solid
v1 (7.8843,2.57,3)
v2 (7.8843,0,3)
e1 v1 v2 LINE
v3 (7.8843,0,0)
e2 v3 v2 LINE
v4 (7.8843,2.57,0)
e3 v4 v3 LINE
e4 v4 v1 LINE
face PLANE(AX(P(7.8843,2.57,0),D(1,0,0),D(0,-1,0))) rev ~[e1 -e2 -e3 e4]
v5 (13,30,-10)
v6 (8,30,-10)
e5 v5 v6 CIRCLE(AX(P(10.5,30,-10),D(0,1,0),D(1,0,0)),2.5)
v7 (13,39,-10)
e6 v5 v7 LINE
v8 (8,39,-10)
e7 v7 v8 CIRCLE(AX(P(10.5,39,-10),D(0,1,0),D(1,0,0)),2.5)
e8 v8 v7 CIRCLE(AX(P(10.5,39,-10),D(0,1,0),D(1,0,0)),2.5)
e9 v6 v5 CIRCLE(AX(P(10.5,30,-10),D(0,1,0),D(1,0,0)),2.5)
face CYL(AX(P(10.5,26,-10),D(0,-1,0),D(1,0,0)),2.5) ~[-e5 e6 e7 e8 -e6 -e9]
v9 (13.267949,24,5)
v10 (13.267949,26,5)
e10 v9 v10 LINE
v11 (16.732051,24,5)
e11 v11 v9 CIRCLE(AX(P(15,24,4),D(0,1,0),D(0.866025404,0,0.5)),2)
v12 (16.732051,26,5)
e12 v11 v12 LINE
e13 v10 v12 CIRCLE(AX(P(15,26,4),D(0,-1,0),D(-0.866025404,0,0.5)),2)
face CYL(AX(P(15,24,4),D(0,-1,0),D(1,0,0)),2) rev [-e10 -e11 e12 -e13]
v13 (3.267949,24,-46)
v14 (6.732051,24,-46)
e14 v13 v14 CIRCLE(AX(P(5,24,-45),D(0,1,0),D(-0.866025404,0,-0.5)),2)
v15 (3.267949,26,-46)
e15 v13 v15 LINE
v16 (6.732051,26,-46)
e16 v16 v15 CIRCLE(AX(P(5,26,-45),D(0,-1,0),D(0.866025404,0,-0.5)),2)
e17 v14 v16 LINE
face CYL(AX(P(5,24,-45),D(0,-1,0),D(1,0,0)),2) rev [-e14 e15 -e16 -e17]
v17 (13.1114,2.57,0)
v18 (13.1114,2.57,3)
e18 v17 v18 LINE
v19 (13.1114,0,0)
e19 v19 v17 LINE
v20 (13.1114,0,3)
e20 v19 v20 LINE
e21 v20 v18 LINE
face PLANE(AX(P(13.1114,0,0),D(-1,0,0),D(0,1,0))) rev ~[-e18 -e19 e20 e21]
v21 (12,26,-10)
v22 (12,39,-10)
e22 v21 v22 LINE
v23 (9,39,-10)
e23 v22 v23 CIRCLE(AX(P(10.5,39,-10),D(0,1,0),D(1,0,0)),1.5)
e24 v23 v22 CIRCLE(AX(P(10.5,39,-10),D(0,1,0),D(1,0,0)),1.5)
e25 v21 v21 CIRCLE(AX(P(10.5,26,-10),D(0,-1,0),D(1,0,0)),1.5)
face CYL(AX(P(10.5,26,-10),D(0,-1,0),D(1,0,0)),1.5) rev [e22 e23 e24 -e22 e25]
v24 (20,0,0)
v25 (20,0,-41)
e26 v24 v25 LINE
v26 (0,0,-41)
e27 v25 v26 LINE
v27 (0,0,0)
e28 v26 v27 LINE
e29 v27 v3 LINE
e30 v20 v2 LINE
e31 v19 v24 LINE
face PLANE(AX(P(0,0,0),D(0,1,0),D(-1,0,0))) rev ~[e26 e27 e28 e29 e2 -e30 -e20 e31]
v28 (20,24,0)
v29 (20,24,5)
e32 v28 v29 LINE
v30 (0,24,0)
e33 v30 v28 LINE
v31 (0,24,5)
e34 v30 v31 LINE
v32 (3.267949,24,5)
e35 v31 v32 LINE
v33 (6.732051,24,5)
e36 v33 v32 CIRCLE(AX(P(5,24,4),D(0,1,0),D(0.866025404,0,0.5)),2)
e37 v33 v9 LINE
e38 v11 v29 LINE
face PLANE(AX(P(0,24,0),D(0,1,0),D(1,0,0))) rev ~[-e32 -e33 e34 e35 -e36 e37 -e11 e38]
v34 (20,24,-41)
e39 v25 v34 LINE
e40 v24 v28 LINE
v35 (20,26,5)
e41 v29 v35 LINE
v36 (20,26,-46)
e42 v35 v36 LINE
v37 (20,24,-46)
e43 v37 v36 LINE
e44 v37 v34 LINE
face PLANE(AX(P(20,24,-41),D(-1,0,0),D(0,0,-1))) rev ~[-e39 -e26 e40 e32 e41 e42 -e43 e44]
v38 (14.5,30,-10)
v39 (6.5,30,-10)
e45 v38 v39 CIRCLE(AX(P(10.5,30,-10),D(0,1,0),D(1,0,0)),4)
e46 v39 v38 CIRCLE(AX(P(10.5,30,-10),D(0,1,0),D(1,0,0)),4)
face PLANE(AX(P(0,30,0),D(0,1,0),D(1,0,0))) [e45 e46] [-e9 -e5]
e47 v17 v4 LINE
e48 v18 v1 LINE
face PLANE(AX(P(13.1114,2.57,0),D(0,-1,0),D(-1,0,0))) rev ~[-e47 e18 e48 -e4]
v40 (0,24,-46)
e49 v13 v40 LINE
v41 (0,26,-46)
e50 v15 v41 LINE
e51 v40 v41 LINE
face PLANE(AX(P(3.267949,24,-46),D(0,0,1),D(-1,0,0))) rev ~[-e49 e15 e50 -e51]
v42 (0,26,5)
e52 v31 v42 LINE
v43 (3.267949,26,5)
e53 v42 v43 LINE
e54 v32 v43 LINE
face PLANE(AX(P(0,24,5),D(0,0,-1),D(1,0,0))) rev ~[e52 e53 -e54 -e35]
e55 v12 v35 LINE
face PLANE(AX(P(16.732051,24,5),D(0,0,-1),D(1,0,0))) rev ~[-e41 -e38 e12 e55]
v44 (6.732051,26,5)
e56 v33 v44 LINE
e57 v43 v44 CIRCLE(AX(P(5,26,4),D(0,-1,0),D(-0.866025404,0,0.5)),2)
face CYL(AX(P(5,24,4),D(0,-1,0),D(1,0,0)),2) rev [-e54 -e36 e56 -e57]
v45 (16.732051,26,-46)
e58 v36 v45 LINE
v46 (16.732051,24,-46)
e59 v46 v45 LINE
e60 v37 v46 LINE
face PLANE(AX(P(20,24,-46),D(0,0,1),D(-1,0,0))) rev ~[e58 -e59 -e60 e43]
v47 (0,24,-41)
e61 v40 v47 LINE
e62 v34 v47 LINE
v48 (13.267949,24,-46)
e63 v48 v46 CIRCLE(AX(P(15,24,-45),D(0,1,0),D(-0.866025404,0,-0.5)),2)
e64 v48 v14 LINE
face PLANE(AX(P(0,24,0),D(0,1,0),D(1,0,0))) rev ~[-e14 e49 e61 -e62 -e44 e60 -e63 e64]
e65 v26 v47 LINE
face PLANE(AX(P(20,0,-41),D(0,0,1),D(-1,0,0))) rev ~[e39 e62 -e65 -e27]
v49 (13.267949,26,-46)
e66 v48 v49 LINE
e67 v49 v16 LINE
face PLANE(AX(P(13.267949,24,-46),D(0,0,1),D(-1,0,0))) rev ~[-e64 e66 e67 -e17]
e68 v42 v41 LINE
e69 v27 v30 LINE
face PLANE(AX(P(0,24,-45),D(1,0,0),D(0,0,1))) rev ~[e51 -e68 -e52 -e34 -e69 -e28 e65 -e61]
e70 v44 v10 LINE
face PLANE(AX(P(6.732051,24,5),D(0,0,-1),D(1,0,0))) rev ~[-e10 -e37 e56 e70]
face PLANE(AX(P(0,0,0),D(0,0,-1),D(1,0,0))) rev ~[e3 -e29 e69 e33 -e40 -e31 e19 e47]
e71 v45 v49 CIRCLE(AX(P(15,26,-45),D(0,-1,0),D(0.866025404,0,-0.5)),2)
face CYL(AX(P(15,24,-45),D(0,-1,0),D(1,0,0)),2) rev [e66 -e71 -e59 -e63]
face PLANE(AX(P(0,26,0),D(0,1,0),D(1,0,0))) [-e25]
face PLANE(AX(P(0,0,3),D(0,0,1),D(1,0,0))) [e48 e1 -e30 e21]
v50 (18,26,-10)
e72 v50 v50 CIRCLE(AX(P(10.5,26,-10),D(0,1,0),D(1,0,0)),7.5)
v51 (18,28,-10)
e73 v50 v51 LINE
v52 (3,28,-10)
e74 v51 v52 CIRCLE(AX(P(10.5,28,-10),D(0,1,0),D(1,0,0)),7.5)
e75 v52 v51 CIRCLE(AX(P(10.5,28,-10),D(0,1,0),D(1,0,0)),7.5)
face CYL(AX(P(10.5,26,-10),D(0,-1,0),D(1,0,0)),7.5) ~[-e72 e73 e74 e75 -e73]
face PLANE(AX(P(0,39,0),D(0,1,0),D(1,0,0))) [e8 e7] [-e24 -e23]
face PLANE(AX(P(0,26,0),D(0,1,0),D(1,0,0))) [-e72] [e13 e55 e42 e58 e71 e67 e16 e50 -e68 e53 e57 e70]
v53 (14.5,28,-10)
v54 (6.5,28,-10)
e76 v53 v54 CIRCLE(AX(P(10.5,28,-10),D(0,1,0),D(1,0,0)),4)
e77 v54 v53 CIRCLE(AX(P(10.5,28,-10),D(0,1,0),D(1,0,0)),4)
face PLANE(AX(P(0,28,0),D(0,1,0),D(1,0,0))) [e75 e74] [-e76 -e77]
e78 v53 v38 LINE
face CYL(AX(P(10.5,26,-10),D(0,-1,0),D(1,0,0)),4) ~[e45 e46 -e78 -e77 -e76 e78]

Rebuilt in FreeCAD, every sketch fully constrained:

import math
import FreeCAD as App
import Part
import Sketcher
from FreeCAD import Vector
Q = App.Units.Quantity


def add_polygon(sketch, points):
    """Adds a closed chain of lines whose ends are joined by coincident constraints."""
    first, n = sketch.GeometryCount, len(points)
    for a, b in zip(points, points[1:] + points[:1]):
        sketch.addGeometry(Part.LineSegment(App.Vector(*a, 0), App.Vector(*b, 0)), False)
    for i in range(n):
        sketch.addConstraint(Sketcher.Constraint("Coincident", first + i, 2, first + (i + 1) % n, 1))

doc = App.newDocument("Part")
body = doc.addObject("PartDesign::Body", "Body")

# Sketch on XZ plane
sketch1 = body.newObject("Sketcher::SketchObject", "Sketch")
sketch1.AttachmentSupport = (doc.getObject("XZ_Plane"), [""])
sketch1.MapMode = "FlatFace"
add_polygon(sketch1, [(0, -41), (0, 0), (20, 0), (20, -41)])  # lines 0-3
sketch1.addConstraint(Sketcher.Constraint("Vertical", 0))
sketch1.addConstraint(Sketcher.Constraint("Horizontal", 1))
sketch1.addConstraint(Sketcher.Constraint("Vertical", 2))
sketch1.addConstraint(Sketcher.Constraint("Horizontal", 3))
sketch1.addConstraint(Sketcher.Constraint("Coincident", 0, 2, -1, 1))
sketch1.addConstraint(Sketcher.Constraint("DistanceX", 1, 1, 1, 2, Q("20 mm")))
sketch1.addConstraint(Sketcher.Constraint("DistanceY", 0, 1, 0, 2, Q("41 mm")))
pad1 = body.newObject("PartDesign::Pad", "Pad")
pad1.Profile = sketch1
pad1.Length = 24
pad1.Reversed = True

# Sketch on XZ plane
sketch2 = body.newObject("Sketcher::SketchObject", "Sketch001")
sketch2.AttachmentSupport = (doc.getObject("XZ_Plane"), [""])
sketch2.MapMode = "FlatFace"
sketch2.AttachmentOffset = App.Placement(Vector(0, 0, -24), App.Rotation())
sketch2.addGeometry(Part.LineSegment(Vector(0, 5, 0), Vector(3.3, 5, 0)), False)
sketch2.addGeometry(Part.ArcOfCircle(Part.Circle(Vector(5, 4, 0), Vector(0, 0, 1), 2), math.radians(150), math.radians(390)), False)
sketch2.addGeometry(Part.LineSegment(Vector(6.7, 5, 0), Vector(13.3, 5, 0)), False)
sketch2.addGeometry(Part.ArcOfCircle(Part.Circle(Vector(15, 4, 0), Vector(0, 0, 1), 2), math.radians(150), math.radians(390)), False)
sketch2.addGeometry(Part.LineSegment(Vector(16.7, 5, 0), Vector(20, 5, 0)), False)
sketch2.addGeometry(Part.LineSegment(Vector(20, 5, 0), Vector(20, -46, 0)), False)
sketch2.addGeometry(Part.LineSegment(Vector(20, -46, 0), Vector(16.7, -46, 0)), False)
sketch2.addGeometry(Part.ArcOfCircle(Part.Circle(Vector(15, -45, 0), Vector(0, 0, 1), 2), math.radians(-30), math.radians(210)), False)
sketch2.addGeometry(Part.LineSegment(Vector(13.3, -46, 0), Vector(6.7, -46, 0)), False)
sketch2.addGeometry(Part.ArcOfCircle(Part.Circle(Vector(5, -45, 0), Vector(0, 0, 1), 2), math.radians(-30), math.radians(210)), False)
sketch2.addGeometry(Part.LineSegment(Vector(3.3, -46, 0), Vector(0, -46, 0)), False)
sketch2.addGeometry(Part.LineSegment(Vector(0, -46, 0), Vector(0, 5, 0)), False)
sketch2.addConstraint(Sketcher.Constraint("Coincident", 0, 2, 1, 1))
sketch2.addConstraint(Sketcher.Constraint("Coincident", 1, 2, 2, 1))
sketch2.addConstraint(Sketcher.Constraint("Coincident", 2, 2, 3, 1))
sketch2.addConstraint(Sketcher.Constraint("Coincident", 3, 2, 4, 1))
sketch2.addConstraint(Sketcher.Constraint("Coincident", 4, 2, 5, 1))
sketch2.addConstraint(Sketcher.Constraint("Coincident", 5, 2, 6, 1))
sketch2.addConstraint(Sketcher.Constraint("Coincident", 6, 2, 7, 1))
sketch2.addConstraint(Sketcher.Constraint("Coincident", 7, 2, 8, 1))
sketch2.addConstraint(Sketcher.Constraint("Coincident", 8, 2, 9, 1))
sketch2.addConstraint(Sketcher.Constraint("Coincident", 9, 2, 10, 1))
sketch2.addConstraint(Sketcher.Constraint("Coincident", 10, 2, 11, 1))
sketch2.addConstraint(Sketcher.Constraint("Coincident", 11, 2, 0, 1))
sketch2.addConstraint(Sketcher.Constraint("Horizontal", 0))
sketch2.addConstraint(Sketcher.Constraint("Horizontal", 2))
sketch2.addConstraint(Sketcher.Constraint("Horizontal", 4))
sketch2.addConstraint(Sketcher.Constraint("Vertical", 5))
sketch2.addConstraint(Sketcher.Constraint("Horizontal", 6))
sketch2.addConstraint(Sketcher.Constraint("Horizontal", 8))
sketch2.addConstraint(Sketcher.Constraint("Horizontal", 10))
sketch2.addConstraint(Sketcher.Constraint("Vertical", 11))
sketch2.addConstraint(Sketcher.Constraint("Equal", 1, 3))
sketch2.addConstraint(Sketcher.Constraint("Equal", 3, 7))
sketch2.addConstraint(Sketcher.Constraint("Equal", 7, 9))
sketch2.addConstraint(Sketcher.Constraint("PointOnObject", 10, 2, -2))
sketch2.addConstraint(Sketcher.Constraint("Horizontal", 1, 3, 3, 3))
sketch2.addConstraint(Sketcher.Constraint("Horizontal", 7, 3, 9, 3))
sketch2.addConstraint(Sketcher.Constraint("Horizontal", 0, 2, 1, 2))
sketch2.addConstraint(Sketcher.Constraint("Horizontal", 2, 2, 3, 2))
sketch2.addConstraint(Sketcher.Constraint("Horizontal", 6, 2, 7, 2))
sketch2.addConstraint(Sketcher.Constraint("Horizontal", 8, 2, 9, 2))
sketch2.addConstraint(Sketcher.Constraint("Vertical", 3, 3, 7, 3))
sketch2.addConstraint(Sketcher.Constraint("Vertical", 1, 3, 9, 3))
sketch2.addConstraint(Sketcher.Constraint("Vertical", 3, 2, 6, 2))
sketch2.addConstraint(Sketcher.Constraint("Equal", 0, 4))
sketch2.addConstraint(Sketcher.Constraint("Radius", 1, Q("2 mm")))
sketch2.addConstraint(Sketcher.Constraint("DistanceY", 5, 2, 5, 1, Q("51 mm")))
sketch2.addConstraint(Sketcher.Constraint("DistanceX", -1, 1, 1, 3, Q("5 mm")))
sketch2.addConstraint(Sketcher.Constraint("DistanceY", -1, 1, 1, 3, Q("4 mm")))
sketch2.addConstraint(Sketcher.Constraint("DistanceY", -1, 1, 0, 2, Q("5 mm")))
sketch2.addConstraint(Sketcher.Constraint("DistanceX", -1, 1, 4, 2, Q("20 mm")))
pad2 = body.newObject("PartDesign::Pad", "Pad001")
pad2.Profile = sketch2
pad2.Length = 2
pad2.Reversed = True

# Sketch on XZ plane
sketch3 = body.newObject("Sketcher::SketchObject", "Sketch002")
sketch3.AttachmentSupport = (doc.getObject("XZ_Plane"), [""])
sketch3.MapMode = "FlatFace"
sketch3.AttachmentOffset = App.Placement(Vector(0, 0, -26), App.Rotation())
sketch3.addGeometry(Part.Circle(Vector(10.5, -10, 0), Vector(0, 0, 1), 2.5), False)
sketch3.addGeometry(Part.Circle(Vector(10.5, -10, 0), Vector(0, 0, 1), 1.5), False)
sketch3.addConstraint(Sketcher.Constraint("Coincident", 1, 3, 0, 3))
sketch3.addConstraint(Sketcher.Constraint("Diameter", 0, Q("5 mm")))
sketch3.addConstraint(Sketcher.Constraint("Diameter", 1, Q("3 mm")))
sketch3.addConstraint(Sketcher.Constraint("DistanceX", -1, 1, 0, 3, Q("10.5 mm")))
sketch3.addConstraint(Sketcher.Constraint("DistanceY", 0, 3, -1, 1, Q("10 mm")))
pad3 = body.newObject("PartDesign::Pad", "Pad002")
pad3.Profile = sketch3
pad3.Length = 13
pad3.Reversed = True

# Sketch on XZ plane
sketch4 = body.newObject("Sketcher::SketchObject", "Sketch003")
sketch4.AttachmentSupport = (doc.getObject("XZ_Plane"), [""])
sketch4.MapMode = "FlatFace"
sketch4.AttachmentOffset = App.Placement(Vector(0, 0, -26), App.Rotation())
sketch4.addGeometry(Part.Circle(Vector(10.5, -10, 0), Vector(0, 0, 1), 4), False)
sketch4.addGeometry(Part.Circle(Vector(10.5, -10, 0), Vector(0, 0, 1), 2.5), False)
sketch4.addConstraint(Sketcher.Constraint("Coincident", 1, 3, 0, 3))
sketch4.addConstraint(Sketcher.Constraint("Diameter", 0, Q("8 mm")))
sketch4.addConstraint(Sketcher.Constraint("Diameter", 1, Q("5 mm")))
sketch4.addConstraint(Sketcher.Constraint("DistanceX", -1, 1, 0, 3, Q("10.5 mm")))
sketch4.addConstraint(Sketcher.Constraint("DistanceY", 0, 3, -1, 1, Q("10 mm")))
pad4 = body.newObject("PartDesign::Pad", "Pad003")
pad4.Profile = sketch4
pad4.Length = 4
pad4.Reversed = True

# Sketch on XZ plane
sketch5 = body.newObject("Sketcher::SketchObject", "Sketch004")
sketch5.AttachmentSupport = (doc.getObject("XZ_Plane"), [""])
sketch5.MapMode = "FlatFace"
sketch5.AttachmentOffset = App.Placement(Vector(0, 0, -26), App.Rotation())
sketch5.addGeometry(Part.Circle(Vector(10.5, -10, 0), Vector(0, 0, 1), 7.5), False)
sketch5.addGeometry(Part.Circle(Vector(10.5, -10, 0), Vector(0, 0, 1), 4), False)
sketch5.addConstraint(Sketcher.Constraint("Coincident", 1, 3, 0, 3))
sketch5.addConstraint(Sketcher.Constraint("Diameter", 0, Q("15 mm")))
sketch5.addConstraint(Sketcher.Constraint("Diameter", 1, Q("8 mm")))
sketch5.addConstraint(Sketcher.Constraint("DistanceX", -1, 1, 0, 3, Q("10.5 mm")))
sketch5.addConstraint(Sketcher.Constraint("DistanceY", 0, 3, -1, 1, Q("10 mm")))
pad5 = body.newObject("PartDesign::Pad", "Pad004")
pad5.Profile = sketch5
pad5.Length = 2
pad5.Reversed = True

# Sketch on XY plane
sketch6 = body.newObject("Sketcher::SketchObject", "Sketch005")
sketch6.AttachmentSupport = (doc.getObject("XY_Plane"), [""])
sketch6.MapMode = "FlatFace"
add_polygon(sketch6, [(7.9, 0), (13.1, 0), (13.1, 2.6), (7.9, 2.6)])  # lines 0-3
sketch6.addConstraint(Sketcher.Constraint("Horizontal", 0))
sketch6.addConstraint(Sketcher.Constraint("Vertical", 1))
sketch6.addConstraint(Sketcher.Constraint("Horizontal", 2))
sketch6.addConstraint(Sketcher.Constraint("Vertical", 3))
sketch6.addConstraint(Sketcher.Constraint("PointOnObject", 0, 2, -1))
sketch6.addConstraint(Sketcher.Constraint("DistanceY", 1, 1, 1, 2, Q("2.57 mm")))
sketch6.addConstraint(Sketcher.Constraint("DistanceX", 0, 1, 0, 2, Q("5.227 mm")))
sketch6.addConstraint(Sketcher.Constraint("DistanceX", -1, 1, 0, 2, Q("13.1114 mm")))
pad6 = body.newObject("PartDesign::Pad", "Pad005")
pad6.Profile = sketch6
pad6.Length = 3

doc.recompute()
